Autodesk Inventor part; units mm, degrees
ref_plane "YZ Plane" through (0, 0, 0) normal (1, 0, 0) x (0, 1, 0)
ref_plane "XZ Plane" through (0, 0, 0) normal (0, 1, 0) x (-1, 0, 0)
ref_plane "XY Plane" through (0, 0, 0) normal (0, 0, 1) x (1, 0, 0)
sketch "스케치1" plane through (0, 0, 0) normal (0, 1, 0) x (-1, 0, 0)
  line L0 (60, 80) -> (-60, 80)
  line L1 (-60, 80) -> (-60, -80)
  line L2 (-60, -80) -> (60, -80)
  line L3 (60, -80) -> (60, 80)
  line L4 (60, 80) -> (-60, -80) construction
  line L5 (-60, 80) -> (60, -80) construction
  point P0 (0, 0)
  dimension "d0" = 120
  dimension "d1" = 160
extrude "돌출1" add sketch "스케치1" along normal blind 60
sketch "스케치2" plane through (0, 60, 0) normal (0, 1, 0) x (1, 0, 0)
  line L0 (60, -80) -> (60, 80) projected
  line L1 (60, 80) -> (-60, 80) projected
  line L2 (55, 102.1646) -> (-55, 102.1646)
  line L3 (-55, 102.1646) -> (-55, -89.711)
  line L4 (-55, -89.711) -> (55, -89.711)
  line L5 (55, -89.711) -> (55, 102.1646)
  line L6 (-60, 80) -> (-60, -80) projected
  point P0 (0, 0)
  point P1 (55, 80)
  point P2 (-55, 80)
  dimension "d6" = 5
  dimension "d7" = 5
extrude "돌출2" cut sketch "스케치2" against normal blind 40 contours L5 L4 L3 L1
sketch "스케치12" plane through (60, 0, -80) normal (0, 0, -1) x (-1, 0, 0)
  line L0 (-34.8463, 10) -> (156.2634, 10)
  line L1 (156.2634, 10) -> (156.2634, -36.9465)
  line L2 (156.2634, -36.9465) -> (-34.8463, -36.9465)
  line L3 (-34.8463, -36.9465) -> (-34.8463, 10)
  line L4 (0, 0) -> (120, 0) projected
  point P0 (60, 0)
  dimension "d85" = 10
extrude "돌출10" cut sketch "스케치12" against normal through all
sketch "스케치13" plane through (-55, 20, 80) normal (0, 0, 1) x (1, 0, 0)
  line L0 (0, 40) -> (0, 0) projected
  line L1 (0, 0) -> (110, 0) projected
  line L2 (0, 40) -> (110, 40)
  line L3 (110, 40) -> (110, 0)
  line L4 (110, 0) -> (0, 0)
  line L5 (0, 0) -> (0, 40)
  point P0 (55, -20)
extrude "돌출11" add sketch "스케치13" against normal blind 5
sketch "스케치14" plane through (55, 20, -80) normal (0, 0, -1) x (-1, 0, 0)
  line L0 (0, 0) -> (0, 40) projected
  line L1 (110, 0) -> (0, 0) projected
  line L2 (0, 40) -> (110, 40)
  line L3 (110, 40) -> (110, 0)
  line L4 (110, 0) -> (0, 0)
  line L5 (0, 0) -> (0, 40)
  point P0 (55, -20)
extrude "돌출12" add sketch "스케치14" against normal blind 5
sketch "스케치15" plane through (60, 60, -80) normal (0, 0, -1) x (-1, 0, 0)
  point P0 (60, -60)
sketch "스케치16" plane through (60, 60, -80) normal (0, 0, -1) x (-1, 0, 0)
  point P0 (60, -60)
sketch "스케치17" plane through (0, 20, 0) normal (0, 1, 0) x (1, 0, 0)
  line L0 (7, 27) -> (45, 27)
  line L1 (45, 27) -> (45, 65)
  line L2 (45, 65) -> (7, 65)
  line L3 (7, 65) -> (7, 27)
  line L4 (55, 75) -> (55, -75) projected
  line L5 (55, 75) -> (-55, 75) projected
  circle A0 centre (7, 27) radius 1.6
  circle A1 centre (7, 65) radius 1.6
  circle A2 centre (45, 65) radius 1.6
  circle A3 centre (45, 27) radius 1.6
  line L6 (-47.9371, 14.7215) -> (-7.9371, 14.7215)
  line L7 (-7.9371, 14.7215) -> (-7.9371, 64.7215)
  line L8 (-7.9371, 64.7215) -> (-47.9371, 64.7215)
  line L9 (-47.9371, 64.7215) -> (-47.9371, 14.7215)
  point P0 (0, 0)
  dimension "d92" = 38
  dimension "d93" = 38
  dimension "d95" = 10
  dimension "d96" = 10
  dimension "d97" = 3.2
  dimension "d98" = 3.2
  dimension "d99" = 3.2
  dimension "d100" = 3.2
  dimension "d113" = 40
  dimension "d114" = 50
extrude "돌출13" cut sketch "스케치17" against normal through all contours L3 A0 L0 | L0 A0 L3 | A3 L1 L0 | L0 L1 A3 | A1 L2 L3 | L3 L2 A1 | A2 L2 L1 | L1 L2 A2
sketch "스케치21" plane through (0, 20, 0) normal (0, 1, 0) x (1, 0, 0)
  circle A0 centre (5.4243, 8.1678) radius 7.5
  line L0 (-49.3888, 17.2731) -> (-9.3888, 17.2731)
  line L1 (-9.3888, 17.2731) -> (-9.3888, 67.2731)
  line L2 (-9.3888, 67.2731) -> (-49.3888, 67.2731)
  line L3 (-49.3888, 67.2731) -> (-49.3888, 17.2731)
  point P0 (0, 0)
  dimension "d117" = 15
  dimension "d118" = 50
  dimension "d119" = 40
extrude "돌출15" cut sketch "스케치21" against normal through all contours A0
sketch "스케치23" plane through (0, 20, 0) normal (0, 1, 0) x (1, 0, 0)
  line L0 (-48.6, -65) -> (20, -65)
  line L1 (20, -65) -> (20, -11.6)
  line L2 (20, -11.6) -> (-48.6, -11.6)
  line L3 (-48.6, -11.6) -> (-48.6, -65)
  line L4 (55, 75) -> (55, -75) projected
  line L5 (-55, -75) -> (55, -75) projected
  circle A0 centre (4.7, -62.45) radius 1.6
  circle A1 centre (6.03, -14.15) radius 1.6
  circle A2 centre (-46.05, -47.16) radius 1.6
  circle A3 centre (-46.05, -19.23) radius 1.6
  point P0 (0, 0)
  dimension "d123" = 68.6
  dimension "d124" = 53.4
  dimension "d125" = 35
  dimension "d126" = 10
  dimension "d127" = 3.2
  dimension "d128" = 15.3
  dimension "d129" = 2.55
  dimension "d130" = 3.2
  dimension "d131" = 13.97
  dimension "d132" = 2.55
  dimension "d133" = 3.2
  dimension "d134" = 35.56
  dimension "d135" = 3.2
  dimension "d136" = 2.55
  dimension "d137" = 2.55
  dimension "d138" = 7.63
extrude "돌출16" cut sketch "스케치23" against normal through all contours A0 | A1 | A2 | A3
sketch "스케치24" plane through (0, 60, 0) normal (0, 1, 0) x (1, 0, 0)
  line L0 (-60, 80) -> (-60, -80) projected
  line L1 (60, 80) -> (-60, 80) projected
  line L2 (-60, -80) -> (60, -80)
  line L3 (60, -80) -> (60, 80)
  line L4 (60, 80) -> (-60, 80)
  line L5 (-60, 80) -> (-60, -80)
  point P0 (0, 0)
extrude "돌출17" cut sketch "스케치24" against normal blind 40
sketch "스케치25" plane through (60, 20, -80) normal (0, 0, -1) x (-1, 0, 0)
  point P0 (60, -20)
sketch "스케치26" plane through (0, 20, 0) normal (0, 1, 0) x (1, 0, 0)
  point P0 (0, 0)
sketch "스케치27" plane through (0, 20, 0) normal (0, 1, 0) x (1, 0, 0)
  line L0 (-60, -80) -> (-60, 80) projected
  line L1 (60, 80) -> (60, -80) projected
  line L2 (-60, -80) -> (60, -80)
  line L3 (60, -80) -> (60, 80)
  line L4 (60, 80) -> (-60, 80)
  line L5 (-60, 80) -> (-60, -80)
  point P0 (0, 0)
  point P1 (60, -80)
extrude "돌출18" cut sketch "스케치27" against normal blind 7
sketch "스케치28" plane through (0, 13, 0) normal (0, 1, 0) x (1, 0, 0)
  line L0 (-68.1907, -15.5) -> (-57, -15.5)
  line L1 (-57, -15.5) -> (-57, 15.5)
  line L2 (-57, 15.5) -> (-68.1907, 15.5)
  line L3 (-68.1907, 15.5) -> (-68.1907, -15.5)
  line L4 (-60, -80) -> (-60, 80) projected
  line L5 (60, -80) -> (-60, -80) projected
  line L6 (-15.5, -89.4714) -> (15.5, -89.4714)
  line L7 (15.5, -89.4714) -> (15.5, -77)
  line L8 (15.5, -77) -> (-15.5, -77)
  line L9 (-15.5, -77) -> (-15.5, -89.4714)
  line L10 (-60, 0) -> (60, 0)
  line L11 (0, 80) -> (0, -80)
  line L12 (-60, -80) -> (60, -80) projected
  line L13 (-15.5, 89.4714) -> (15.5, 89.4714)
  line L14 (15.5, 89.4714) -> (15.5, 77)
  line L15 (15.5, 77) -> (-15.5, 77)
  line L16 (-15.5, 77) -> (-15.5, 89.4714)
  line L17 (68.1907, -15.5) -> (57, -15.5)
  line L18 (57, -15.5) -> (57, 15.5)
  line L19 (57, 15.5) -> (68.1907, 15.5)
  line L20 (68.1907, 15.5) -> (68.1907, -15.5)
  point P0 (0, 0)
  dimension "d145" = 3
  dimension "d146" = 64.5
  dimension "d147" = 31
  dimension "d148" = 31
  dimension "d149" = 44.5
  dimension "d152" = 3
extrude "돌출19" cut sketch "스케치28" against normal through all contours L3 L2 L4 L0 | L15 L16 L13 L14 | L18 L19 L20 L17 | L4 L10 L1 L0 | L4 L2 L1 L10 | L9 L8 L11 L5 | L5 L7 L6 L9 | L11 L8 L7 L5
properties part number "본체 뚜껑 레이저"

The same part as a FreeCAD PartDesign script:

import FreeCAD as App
import Part
import Sketcher
from FreeCAD import Vector


def add_polygon(sketch, points):
    """Adds a closed chain of lines whose ends are joined by coincident constraints."""
    first, n = sketch.GeometryCount, len(points)
    for a, b in zip(points, points[1:] + points[:1]):
        sketch.addGeometry(Part.LineSegment(App.Vector(*a, 0), App.Vector(*b, 0)), False)
    for i in range(n):
        sketch.addConstraint(Sketcher.Constraint("Coincident", first + i, 2, first + (i + 1) % n, 1))

doc = App.newDocument("Part")
body = doc.addObject("PartDesign::Body", "Body")

sketch1 = body.newObject("Sketcher::SketchObject", "Sketch")
sketch1.AttachmentSupport = (doc.getObject("XZ_Plane"), [""])
sketch1.MapMode = "FlatFace"
add_polygon(sketch1, [(-60, -80), (-60, 80), (60, 80), (60, -80)])
sketch1.addConstraint([
    Sketcher.Constraint("Vertical", 0),
    Sketcher.Constraint("Horizontal", 1),
    Sketcher.Constraint("Vertical", 2),
    Sketcher.Constraint("Horizontal", 3),
    Sketcher.Constraint("Symmetric", 0, 2, 2, 2, -1, 1),
    Sketcher.Constraint("DistanceX", 1, 1, 1, 2, 120.0),
    Sketcher.Constraint("DistanceY", 0, 1, 0, 2, 160.0),
])
pad1 = body.newObject("PartDesign::Pad", "Pad")
pad1.Profile = sketch1
pad1.Length = 60
pad1.Reversed = True

sketch2 = body.newObject("Sketcher::SketchObject", "Sketch001")
sketch2.AttachmentSupport = (doc.getObject("XZ_Plane"), [""])
sketch2.MapMode = "FlatFace"
sketch2.AttachmentOffset = App.Placement(Vector(0, 0, -60), App.Rotation())
add_polygon(sketch2, [(55, 90), (55, -80), (-55, -80), (-55, 90)])
sketch2.addConstraint([
    Sketcher.Constraint("Vertical", 0),
    Sketcher.Constraint("Horizontal", 1),
    Sketcher.Constraint("Vertical", 2),
    Sketcher.Constraint("Horizontal", 3),
    Sketcher.Constraint("DistanceX", 1, 2, 1, 1, 110.0),
    Sketcher.Constraint("DistanceX", -1, 1, 0, 2, 55.0),
    Sketcher.Constraint("DistanceY", 0, 2, -1, 1, 80.0),
    Sketcher.Constraint("DistanceY", 0, 2, 0, 1, 169.711),
])
pocket1 = body.newObject("PartDesign::Pocket", "Pocket")
pocket1.Profile = sketch2
pocket1.Length = 40
pocket1.Reversed = True

sketch3 = body.newObject("Sketcher::SketchObject", "Sketch002")
sketch3.AttachmentSupport = (doc.getObject("XY_Plane"), [""])
sketch3.MapMode = "FlatFace"
sketch3.AttachmentOffset = App.Placement(Vector(0, 0, -80), App.Rotation())
add_polygon(sketch3, [(-96, 10), (95, 10), (95, -37), (-96, -37)])
sketch3.addConstraint([
    Sketcher.Constraint("Horizontal", 0),
    Sketcher.Constraint("Vertical", 1),
    Sketcher.Constraint("Horizontal", 2),
    Sketcher.Constraint("Vertical", 3),
    Sketcher.Constraint("DistanceY", -1, 1, 0, 2, 10.0),
    Sketcher.Constraint("DistanceX", 0, 1, 0, 2, 191.1097),
    Sketcher.Constraint("DistanceY", 1, 2, 1, 1, 46.9465),
    Sketcher.Constraint("DistanceX", -1, 1, 0, 2, 94.8463),
])
pocket2 = body.newObject("PartDesign::Pocket", "Pocket001")
pocket2.Profile = sketch3
pocket2.Type = "ThroughAll"
pocket2.Reversed = True

sketch4 = body.newObject("Sketcher::SketchObject", "Sketch003")
sketch4.AttachmentSupport = (doc.getObject("XY_Plane"), [""])
sketch4.MapMode = "FlatFace"
sketch4.AttachmentOffset = App.Placement(Vector(0, 0, 80), App.Rotation())
add_polygon(sketch4, [(55, 60), (-55, 60), (-55, 20), (55, 20)])
sketch4.addConstraint([
    Sketcher.Constraint("Horizontal", 0),
    Sketcher.Constraint("Vertical", 1),
    Sketcher.Constraint("Horizontal", 2),
    Sketcher.Constraint("Vertical", 3),
    Sketcher.Constraint("DistanceX", 0, 2, 0, 1, 110.0),
    Sketcher.Constraint("DistanceY", 1, 2, 1, 1, 40.0),
    Sketcher.Constraint("DistanceX", 0, 2, -1, 1, 55.0),
    Sketcher.Constraint("DistanceY", -1, 1, 0, 2, 60.0),
])
pad2 = body.newObject("PartDesign::Pad", "Pad001")
pad2.Profile = sketch4
pad2.Length = 5
pad2.Reversed = True

sketch5 = body.newObject("Sketcher::SketchObject", "Sketch004")
sketch5.AttachmentSupport = (doc.getObject("XY_Plane"), [""])
sketch5.MapMode = "FlatFace"
sketch5.AttachmentOffset = App.Placement(Vector(0, 0, -80), App.Rotation())
add_polygon(sketch5, [(55, 60), (55, 20), (-55, 20), (-55, 60)])
sketch5.addConstraint([
    Sketcher.Constraint("Vertical", 0),
    Sketcher.Constraint("Horizontal", 1),
    Sketcher.Constraint("Vertical", 2),
    Sketcher.Constraint("Horizontal", 3),
    Sketcher.Constraint("DistanceX", 1, 2, 1, 1, 110.0),
    Sketcher.Constraint("DistanceY", 0, 2, 0, 1, 40.0),
    Sketcher.Constraint("DistanceX", -1, 1, 0, 2, 55.0),
    Sketcher.Constraint("DistanceY", -1, 1, 0, 2, 20.0),
])
pad3 = body.newObject("PartDesign::Pad", "Pad002")
pad3.Profile = sketch5
pad3.Length = 5

sketch6 = body.newObject("Sketcher::SketchObject", "Sketch005")
sketch6.AttachmentSupport = (doc.getObject("XZ_Plane"), [""])
sketch6.MapMode = "FlatFace"
sketch6.AttachmentOffset = App.Placement(Vector(0, 0, -20), App.Rotation())
sketch6.addGeometry([
    Part.Circle(Vector(7, -27, 0), Vector(0, 0, 1), 1.6),
    Part.Circle(Vector(45, -27, 0), Vector(0, 0, 1), 1.6),
    Part.Circle(Vector(7, -65, 0), Vector(0, 0, 1), 1.6),
    Part.Circle(Vector(45, -65, 0), Vector(0, 0, 1), 1.6),
], False)
sketch6.addConstraint([
    Sketcher.Constraint("Equal", 0, 1),
    Sketcher.Constraint("Equal", 1, 2),
    Sketcher.Constraint("Equal", 2, 3),
    Sketcher.Constraint("Horizontal", 0, 3, 1, 3),
    Sketcher.Constraint("Horizontal", 2, 3, 3, 3),
    Sketcher.Constraint("Vertical", 0, 3, 2, 3),
    Sketcher.Constraint("Vertical", 1, 3, 3, 3),
    Sketcher.Constraint("Diameter", 0, 3.2),
    Sketcher.Constraint("DistanceX", 0, 3, 1, 3, 38.0),
    Sketcher.Constraint("DistanceY", 2, 3, 0, 3, 38.0),
    Sketcher.Constraint("DistanceX", -1, 1, 0, 3, 7.0),
    Sketcher.Constraint("DistanceY", 0, 3, -1, 1, 27.0),
])
pocket3 = body.newObject("PartDesign::Pocket", "Pocket002")
pocket3.Profile = sketch6
pocket3.Type = "ThroughAll"
pocket3.Reversed = True

sketch7 = body.newObject("Sketcher::SketchObject", "Sketch006")
sketch7.AttachmentSupport = (doc.getObject("XZ_Plane"), [""])
sketch7.MapMode = "FlatFace"
sketch7.AttachmentOffset = App.Placement(Vector(0, 0, -20), App.Rotation())
sketch7.addGeometry(Part.Circle(Vector(5, -8, 0), Vector(0, 0, 1), 8), False)
sketch7.addConstraint([
    Sketcher.Constraint("Diameter", 0, 15.0),
    Sketcher.Constraint("DistanceX", -1, 1, 0, 3, 5.4243),
    Sketcher.Constraint("DistanceY", 0, 3, -1, 1, 8.1678),
])
pocket4 = body.newObject("PartDesign::Pocket", "Pocket003")
pocket4.Profile = sketch7
pocket4.Type = "ThroughAll"
pocket4.Reversed = True

sketch8 = body.newObject("Sketcher::SketchObject", "Sketch007")
sketch8.AttachmentSupport = (doc.getObject("XZ_Plane"), [""])
sketch8.MapMode = "FlatFace"
sketch8.AttachmentOffset = App.Placement(Vector(0, 0, -20), App.Rotation())
sketch8.addGeometry([
    Part.Circle(Vector(4.7, 62.5, 0), Vector(0, 0, 1), 1.6),
    Part.Circle(Vector(6, 14.2, 0), Vector(0, 0, 1), 1.6),
    Part.Circle(Vector(-46, 47.2, 0), Vector(0, 0, 1), 1.6),
    Part.Circle(Vector(-46, 19.2, 0), Vector(0, 0, 1), 1.6),
], False)
sketch8.addConstraint([
    Sketcher.Constraint("Equal", 0, 1),
    Sketcher.Constraint("Equal", 1, 2),
    Sketcher.Constraint("Equal", 2, 3),
    Sketcher.Constraint("Vertical", 2, 3, 3, 3),
    Sketcher.Constraint("Diameter", 0, 3.2),
    Sketcher.Constraint("DistanceX", -1, 1, 0, 3, 4.7),
    Sketcher.Constraint("DistanceY", 1, 3, 0, 3, 48.3),
    Sketcher.Constraint("DistanceY", -1, 1, 0, 3, 62.45),
    Sketcher.Constraint("DistanceX", -1, 1, 1, 3, 6.03),
    Sketcher.Constraint("DistanceX", 2, 3, -1, 1, 46.05),
    Sketcher.Constraint("DistanceY", -1, 1, 2, 3, 47.16),
    Sketcher.Constraint("DistanceY", -1, 1, 3, 3, 19.23),
])
pocket5 = body.newObject("PartDesign::Pocket", "Pocket004")
pocket5.Profile = sketch8
pocket5.Type = "ThroughAll"
pocket5.Reversed = True

sketch9 = body.newObject("Sketcher::SketchObject", "Sketch008")
sketch9.AttachmentSupport = (doc.getObject("XZ_Plane"), [""])
sketch9.MapMode = "FlatFace"
sketch9.AttachmentOffset = App.Placement(Vector(0, 0, -60), App.Rotation())
add_polygon(sketch9, [(60, -80), (-60, -80), (-60, 80), (60, 80)])
sketch9.addConstraint([
    Sketcher.Constraint("Horizontal", 0),
    Sketcher.Constraint("Vertical", 1),
    Sketcher.Constraint("Horizontal", 2),
    Sketcher.Constraint("Vertical", 3),
    Sketcher.Constraint("Symmetric", 0, 2, 2, 2, -1, 1),
    Sketcher.Constraint("DistanceX", 0, 2, 0, 1, 120.0),
    Sketcher.Constraint("DistanceY", 1, 1, 1, 2, 160.0),
])
pocket6 = body.newObject("PartDesign::Pocket", "Pocket005")
pocket6.Profile = sketch9
pocket6.Length = 40
pocket6.Reversed = True

sketch10 = body.newObject("Sketcher::SketchObject", "Sketch009")
sketch10.AttachmentSupport = (doc.getObject("XZ_Plane"), [""])
sketch10.MapMode = "FlatFace"
sketch10.AttachmentOffset = App.Placement(Vector(0, 0, -20), App.Rotation())
add_polygon(sketch10, [(-60, -80), (-60, 80), (60, 80), (60, -80)])
sketch10.addConstraint([
    Sketcher.Constraint("Vertical", 0),
    Sketcher.Constraint("Horizontal", 1),
    Sketcher.Constraint("Vertical", 2),
    Sketcher.Constraint("Horizontal", 3),
    Sketcher.Constraint("Symmetric", 0, 2, 2, 2, -1, 1),
    Sketcher.Constraint("DistanceX", 1, 1, 1, 2, 120.0),
    Sketcher.Constraint("DistanceY", 0, 1, 0, 2, 160.0),
])
pocket7 = body.newObject("PartDesign::Pocket", "Pocket006")
pocket7.Profile = sketch10
pocket7.Length = 7
pocket7.Reversed = True

sketch11 = body.newObject("Sketcher::SketchObject", "Sketch010")
sketch11.AttachmentSupport = (doc.getObject("XZ_Plane"), [""])
sketch11.MapMode = "FlatFace"
sketch11.AttachmentOffset = App.Placement(Vector(0, 0, -13), App.Rotation())
add_polygon(sketch11, [(-68, -16), (-68, 16), (-57, 16), (-57, -16)])
add_polygon(sketch11, [(-16, -77), (16, -77), (16, -89), (-16, -89)])
add_polygon(sketch11, [(57, -16), (57, 16), (68, 16), (68, -16)])
add_polygon(sketch11, [(-16, 77), (-16, 89), (16, 89), (16, 77)])
sketch11.addConstraint([
    Sketcher.Constraint("Vertical", 0),
    Sketcher.Constraint("Horizontal", 1),
    Sketcher.Constraint("Vertical", 2),
    Sketcher.Constraint("Horizontal", 3),
    Sketcher.Constraint("Horizontal", 4),
    Sketcher.Constraint("Vertical", 5),
    Sketcher.Constraint("Horizontal", 6),
    Sketcher.Constraint("Vertical", 7),
    Sketcher.Constraint("Vertical", 8),
    Sketcher.Constraint("Horizontal", 9),
    Sketcher.Constraint("Vertical", 10),
    Sketcher.Constraint("Horizontal", 11),
    Sketcher.Constraint("Vertical", 12),
    Sketcher.Constraint("Horizontal", 13),
    Sketcher.Constraint("Vertical", 14),
    Sketcher.Constraint("Horizontal", 15),
    Sketcher.Constraint("Symmetric", 2, 2, 8, 2, -1, 1),
    Sketcher.Constraint("Symmetric", 0, 2, 10, 2, -1, 1),
    Sketcher.Constraint("Symmetric", 5, 2, 12, 2, -1, 1),
    Sketcher.Constraint("Symmetric", 7, 2, 14, 2, -1, 1),
    Sketcher.Constraint("Horizontal", 1, 2, 8, 2),
    Sketcher.Constraint("Vertical", 7, 2, 12, 2),
    Sketcher.Constraint("Equal", 15, 0),
    Sketcher.Constraint("DistanceX", 4, 1, 4, 2, 31.0),
    Sketcher.Constraint("DistanceX", 1, 2, -1, 1, 57.0),
    Sketcher.Constraint("DistanceY", 4, 2, -1, 1, 77.0),
    Sketcher.Constraint("DistanceX", 1, 1, 1, 2, 11.1907),
    Sketcher.Constraint("DistanceY", 5, 2, 5, 1, 12.4714),
])
pocket8 = body.newObject("PartDesign::Pocket", "Pocket007")
pocket8.Profile = sketch11
pocket8.Type = "ThroughAll"
pocket8.Reversed = True

doc.recompute()
